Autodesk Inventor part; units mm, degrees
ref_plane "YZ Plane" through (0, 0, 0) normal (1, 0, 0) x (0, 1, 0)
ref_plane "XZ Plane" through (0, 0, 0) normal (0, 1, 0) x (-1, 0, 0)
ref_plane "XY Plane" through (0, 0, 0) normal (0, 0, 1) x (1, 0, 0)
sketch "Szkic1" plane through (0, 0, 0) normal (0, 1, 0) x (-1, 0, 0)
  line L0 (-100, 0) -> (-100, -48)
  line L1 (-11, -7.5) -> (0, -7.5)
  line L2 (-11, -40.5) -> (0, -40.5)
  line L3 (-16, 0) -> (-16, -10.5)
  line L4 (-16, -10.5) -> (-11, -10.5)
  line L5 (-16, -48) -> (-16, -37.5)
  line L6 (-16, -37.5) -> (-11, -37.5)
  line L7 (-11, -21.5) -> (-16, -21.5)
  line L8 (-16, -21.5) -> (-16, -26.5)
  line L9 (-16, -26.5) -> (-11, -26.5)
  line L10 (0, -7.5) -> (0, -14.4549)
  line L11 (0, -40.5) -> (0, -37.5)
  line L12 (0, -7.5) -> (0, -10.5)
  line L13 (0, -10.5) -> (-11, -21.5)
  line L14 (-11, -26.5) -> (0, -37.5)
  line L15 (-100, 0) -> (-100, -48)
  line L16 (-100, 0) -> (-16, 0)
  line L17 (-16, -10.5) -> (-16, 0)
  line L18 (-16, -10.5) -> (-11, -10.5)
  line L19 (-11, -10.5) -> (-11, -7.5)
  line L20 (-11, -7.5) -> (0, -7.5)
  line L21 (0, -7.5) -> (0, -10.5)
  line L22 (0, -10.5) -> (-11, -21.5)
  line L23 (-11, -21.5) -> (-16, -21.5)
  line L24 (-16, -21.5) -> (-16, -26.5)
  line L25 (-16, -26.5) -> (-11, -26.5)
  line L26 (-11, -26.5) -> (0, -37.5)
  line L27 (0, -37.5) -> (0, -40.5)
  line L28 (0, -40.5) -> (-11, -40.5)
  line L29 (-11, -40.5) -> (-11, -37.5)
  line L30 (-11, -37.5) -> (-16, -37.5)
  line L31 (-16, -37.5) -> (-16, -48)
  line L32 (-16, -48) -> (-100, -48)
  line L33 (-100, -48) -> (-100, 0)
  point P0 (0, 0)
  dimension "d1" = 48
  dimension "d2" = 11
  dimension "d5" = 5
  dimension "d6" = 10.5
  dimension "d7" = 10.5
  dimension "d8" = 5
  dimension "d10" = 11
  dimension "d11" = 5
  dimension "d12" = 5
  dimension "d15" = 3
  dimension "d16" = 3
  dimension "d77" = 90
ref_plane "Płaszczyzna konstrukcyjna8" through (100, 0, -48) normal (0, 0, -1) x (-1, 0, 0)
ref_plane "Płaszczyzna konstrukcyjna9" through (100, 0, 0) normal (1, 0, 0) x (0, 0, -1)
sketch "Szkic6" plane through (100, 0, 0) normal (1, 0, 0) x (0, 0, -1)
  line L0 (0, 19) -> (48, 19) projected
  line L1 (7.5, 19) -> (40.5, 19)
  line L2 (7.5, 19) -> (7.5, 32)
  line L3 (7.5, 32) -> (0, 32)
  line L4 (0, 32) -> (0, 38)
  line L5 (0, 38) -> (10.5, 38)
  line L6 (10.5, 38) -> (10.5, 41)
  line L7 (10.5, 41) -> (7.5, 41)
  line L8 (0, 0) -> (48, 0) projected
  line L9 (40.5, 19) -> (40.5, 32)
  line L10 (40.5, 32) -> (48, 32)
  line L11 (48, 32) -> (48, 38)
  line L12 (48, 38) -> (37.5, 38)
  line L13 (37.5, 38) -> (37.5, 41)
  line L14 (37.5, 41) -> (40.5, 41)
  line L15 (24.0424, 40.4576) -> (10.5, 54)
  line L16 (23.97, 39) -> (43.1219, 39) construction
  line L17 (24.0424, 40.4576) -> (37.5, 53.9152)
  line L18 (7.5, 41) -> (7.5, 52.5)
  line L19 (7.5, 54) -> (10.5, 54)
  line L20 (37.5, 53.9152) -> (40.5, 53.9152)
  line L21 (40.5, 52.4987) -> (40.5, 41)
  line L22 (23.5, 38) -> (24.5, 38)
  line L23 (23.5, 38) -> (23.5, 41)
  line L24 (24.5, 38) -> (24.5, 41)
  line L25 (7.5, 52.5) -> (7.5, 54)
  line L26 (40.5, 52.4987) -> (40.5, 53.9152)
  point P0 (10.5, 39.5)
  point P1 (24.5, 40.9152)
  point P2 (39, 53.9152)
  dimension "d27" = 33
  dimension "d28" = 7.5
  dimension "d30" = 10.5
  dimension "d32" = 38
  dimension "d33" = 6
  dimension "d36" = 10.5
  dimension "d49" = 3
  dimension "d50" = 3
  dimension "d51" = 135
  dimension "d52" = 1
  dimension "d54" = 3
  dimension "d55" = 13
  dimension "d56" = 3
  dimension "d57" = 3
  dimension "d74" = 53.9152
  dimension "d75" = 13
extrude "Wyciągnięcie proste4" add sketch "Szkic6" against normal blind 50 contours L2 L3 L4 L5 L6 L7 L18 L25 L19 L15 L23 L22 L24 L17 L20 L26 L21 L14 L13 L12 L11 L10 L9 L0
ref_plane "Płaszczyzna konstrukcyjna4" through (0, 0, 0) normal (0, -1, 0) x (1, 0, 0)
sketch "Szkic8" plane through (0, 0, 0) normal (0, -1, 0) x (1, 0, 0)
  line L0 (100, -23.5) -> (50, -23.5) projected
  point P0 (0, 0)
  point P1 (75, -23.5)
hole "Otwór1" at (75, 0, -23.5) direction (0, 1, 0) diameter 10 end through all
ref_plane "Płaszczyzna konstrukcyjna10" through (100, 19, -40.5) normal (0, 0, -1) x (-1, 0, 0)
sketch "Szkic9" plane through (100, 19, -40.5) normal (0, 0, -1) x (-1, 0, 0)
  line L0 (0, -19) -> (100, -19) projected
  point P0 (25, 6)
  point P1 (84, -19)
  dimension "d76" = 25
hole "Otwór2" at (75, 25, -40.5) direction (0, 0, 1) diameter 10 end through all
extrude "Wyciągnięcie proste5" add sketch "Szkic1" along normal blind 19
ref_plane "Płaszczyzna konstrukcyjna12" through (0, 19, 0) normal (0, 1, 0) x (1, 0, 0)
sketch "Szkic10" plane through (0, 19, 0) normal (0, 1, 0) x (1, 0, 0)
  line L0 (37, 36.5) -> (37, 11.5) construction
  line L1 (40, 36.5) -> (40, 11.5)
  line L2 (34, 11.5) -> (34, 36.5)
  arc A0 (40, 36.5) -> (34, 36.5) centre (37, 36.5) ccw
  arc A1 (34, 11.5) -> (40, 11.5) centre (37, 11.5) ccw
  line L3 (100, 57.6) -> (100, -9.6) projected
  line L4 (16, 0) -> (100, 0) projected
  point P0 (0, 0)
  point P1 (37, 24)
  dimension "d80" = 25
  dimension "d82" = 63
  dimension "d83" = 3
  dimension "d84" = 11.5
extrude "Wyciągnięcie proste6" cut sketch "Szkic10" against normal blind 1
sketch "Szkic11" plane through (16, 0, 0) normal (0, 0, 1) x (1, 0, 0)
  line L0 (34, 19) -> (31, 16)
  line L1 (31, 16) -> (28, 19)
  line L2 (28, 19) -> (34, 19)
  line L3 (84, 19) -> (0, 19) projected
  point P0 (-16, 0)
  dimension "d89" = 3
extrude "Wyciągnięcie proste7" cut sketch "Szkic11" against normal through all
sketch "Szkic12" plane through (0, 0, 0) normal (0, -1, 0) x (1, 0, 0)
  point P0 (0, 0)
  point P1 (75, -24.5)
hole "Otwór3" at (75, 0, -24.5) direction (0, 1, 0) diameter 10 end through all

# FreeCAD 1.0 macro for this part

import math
import FreeCAD as App
import Part
import Sketcher

V = App.Vector
Q = App.Units.Quantity

doc = App.newDocument("Part")
body = doc.addObject("PartDesign::Body", "Body")

# Sketch on YZ plane
sketch1 = doc.addObject("Sketcher::SketchObject", "Sketch")
body.addObject(sketch1)
sketch1.AttachmentSupport = (doc.YZ_Plane, [""])
sketch1.MapMode = "FlatFace"
sketch1.AttachmentOffset = App.Placement(V(0, 0, 100), App.Rotation())
sketch1.addGeometry([
    Part.LineSegment(V(32, -7.5, 0), V(19, -7.5, 0)),  # 0
    Part.LineSegment(V(19, -7.5, 0), V(19, -40.5, 0)),  # 1
    Part.LineSegment(V(19, -40.5, 0), V(32, -40.5, 0)),  # 2
    Part.LineSegment(V(32, -40.5, 0), V(32, -48, 0)),  # 3
    Part.LineSegment(V(32, -48, 0), V(38, -48, 0)),  # 4
    Part.LineSegment(V(38, -48, 0), V(38, -37.5, 0)),  # 5
    Part.LineSegment(V(38, -37.5, 0), V(41, -37.5, 0)),  # 6
    Part.LineSegment(V(41, -37.5, 0), V(41, -40.5, 0)),  # 7
    Part.LineSegment(V(41, -40.5, 0), V(53.9, -40.5, 0)),  # 8
    Part.LineSegment(V(53.9, -40.5, 0), V(53.9, -37.5, 0)),  # 9
    Part.LineSegment(V(53.9, -37.5, 0), V(40.9, -24.5, 0)),  # 10
    Part.LineSegment(V(40.9, -24.5, 0), V(38, -24.5, 0)),  # 11
    Part.LineSegment(V(38, -24.5, 0), V(38, -23.5, 0)),  # 12
    Part.LineSegment(V(38, -23.5, 0), V(41, -23.5, 0)),  # 13
    Part.LineSegment(V(41, -23.5, 0), V(54, -10.5, 0)),  # 14
    Part.LineSegment(V(54, -10.5, 0), V(54, -7.5, 0)),  # 15
    Part.LineSegment(V(54, -7.5, 0), V(41, -7.5, 0)),  # 16
    Part.LineSegment(V(41, -7.5, 0), V(41, -10.5, 0)),  # 17
    Part.LineSegment(V(41, -10.5, 0), V(38, -10.5, 0)),  # 18
    Part.LineSegment(V(38, -10.5, 0), V(38, 0, 0)),  # 19
    Part.LineSegment(V(38, 0, 0), V(32, 0, 0)),  # 20
    Part.LineSegment(V(32, 0, 0), V(32, -7.5, 0)),  # 21
], False)
sketch1.addConstraint([
    Sketcher.Constraint("Coincident", 0, 2, 1, 1),
    Sketcher.Constraint("Coincident", 1, 2, 2, 1),
    Sketcher.Constraint("Coincident", 2, 2, 3, 1),
    Sketcher.Constraint("Coincident", 3, 2, 4, 1),
    Sketcher.Constraint("Coincident", 4, 2, 5, 1),
    Sketcher.Constraint("Coincident", 5, 2, 6, 1),
    Sketcher.Constraint("Coincident", 6, 2, 7, 1),
    Sketcher.Constraint("Coincident", 7, 2, 8, 1),
    Sketcher.Constraint("Coincident", 8, 2, 9, 1),
    Sketcher.Constraint("Coincident", 9, 2, 10, 1),
    Sketcher.Constraint("Coincident", 10, 2, 11, 1),
    Sketcher.Constraint("Coincident", 11, 2, 12, 1),
    Sketcher.Constraint("Coincident", 12, 2, 13, 1),
    Sketcher.Constraint("Coincident", 13, 2, 14, 1),
    Sketcher.Constraint("Coincident", 14, 2, 15, 1),
    Sketcher.Constraint("Coincident", 15, 2, 16, 1),
    Sketcher.Constraint("Coincident", 16, 2, 17, 1),
    Sketcher.Constraint("Coincident", 17, 2, 18, 1),
    Sketcher.Constraint("Coincident", 18, 2, 19, 1),
    Sketcher.Constraint("Coincident", 19, 2, 20, 1),
    Sketcher.Constraint("Coincident", 20, 2, 21, 1),
    Sketcher.Constraint("Coincident", 21, 2, 0, 1),
    Sketcher.Constraint("Horizontal", 0),
    Sketcher.Constraint("Vertical", 1),
    Sketcher.Constraint("Horizontal", 2),
    Sketcher.Constraint("Vertical", 3),
    Sketcher.Constraint("Horizontal", 4),
    Sketcher.Constraint("Vertical", 5),
    Sketcher.Constraint("Horizontal", 6),
    Sketcher.Constraint("Vertical", 7),
    Sketcher.Constraint("Horizontal", 8),
    Sketcher.Constraint("Vertical", 9),
    Sketcher.Constraint("Horizontal", 11),
    Sketcher.Constraint("Vertical", 12),
    Sketcher.Constraint("Horizontal", 13),
    Sketcher.Constraint("Vertical", 15),
    Sketcher.Constraint("Horizontal", 16),
    Sketcher.Constraint("Vertical", 17),
    Sketcher.Constraint("Horizontal", 18),
    Sketcher.Constraint("Vertical", 19),
    Sketcher.Constraint("Horizontal", 20),
    Sketcher.Constraint("Vertical", 21),
    Sketcher.Constraint("PointOnObject", 19, 2, -1),
    Sketcher.Constraint("Perpendicular", 10, 14),
    Sketcher.Constraint("Horizontal", 2, 2, 7, 2),
    Sketcher.Constraint("Horizontal", 6, 2, 9, 2),
    Sketcher.Constraint("Horizontal", 0, 2, 15, 2),
    Sketcher.Constraint("Horizontal", 14, 2, 17, 2),
    Sketcher.Constraint("Vertical", 5, 2, 11, 2),
    Sketcher.Constraint("Vertical", 7, 2, 13, 2),
    Sketcher.Constraint("Vertical", 13, 2, 16, 2),
    Sketcher.Constraint("Vertical", 12, 2, 18, 2),
    Sketcher.Constraint("Vertical", 3, 2, 20, 2),
    Sketcher.Constraint("Equal", 2, 16),
    Sketcher.Constraint("Equal", 18, 7),
    Sketcher.Constraint("Equal", 9, 15),
    Sketcher.Constraint("Equal", 5, 19),
    Sketcher.Constraint("Equal", 10, 14),
    Sketcher.Constraint("DistanceX", 0, 2, 0, 1, Q("13 mm")),
    Sketcher.Constraint("DistanceX", 4, 1, 4, 2, Q("6 mm")),
    Sketcher.Constraint("DistanceX", 6, 1, 6, 2, Q("3 mm")),
    Sketcher.Constraint("DistanceY", 1, 2, 1, 1, Q("33 mm")),
    Sketcher.Constraint("DistanceY", 12, 1, 12, 2, Q("1 mm")),
    Sketcher.Constraint("DistanceY", 3, 2, 3, 1, Q("7.5 mm")),
    Sketcher.Constraint("DistanceX", -1, 1, 4, 2, Q("38 mm")),
    Sketcher.Constraint("DistanceX", -1, 1, 8, 2, Q("53.9152 mm")),
])
pad1 = doc.addObject("PartDesign::Pad", "Pad")
body.addObject(pad1)
pad1.Profile = sketch1
pad1.Length = 50
pad1.Reversed = True

# Sketch on XZ plane
sketch2 = doc.addObject("Sketcher::SketchObject", "Sketch001")
body.addObject(sketch2)
sketch2.AttachmentSupport = (doc.XZ_Plane, [""])
sketch2.MapMode = "FlatFace"
sketch2.addGeometry(Part.Circle(V(75, -24, 0), V(0, 0, 1), 5), False)
sketch2.addConstraint([
    Sketcher.Constraint("Diameter", 0, Q("10 mm")),
    Sketcher.Constraint("DistanceX", -1, 1, 0, 3, Q("75 mm")),
    Sketcher.Constraint("DistanceY", 0, 3, -1, 1, Q("23.5 mm")),
])
doc.recompute()
hole = doc.addObject("PartDesign::Hole", "Hole")
body.addObject(hole)
hole.Profile = sketch2
hole.ThreadType = "None"
hole.Diameter = 10
hole.DepthType = "ThroughAll"

# Sketch on XY plane
sketch3 = doc.addObject("Sketcher::SketchObject", "Sketch002")
body.addObject(sketch3)
sketch3.AttachmentSupport = (doc.XY_Plane, [""])
sketch3.MapMode = "FlatFace"
sketch3.AttachmentOffset = App.Placement(V(0, 0, -40.5), App.Rotation())
sketch3.addGeometry(Part.Circle(V(75, 25, 0), V(0, 0, 1), 5), False)
sketch3.addConstraint([
    Sketcher.Constraint("Diameter", 0, Q("10 mm")),
    Sketcher.Constraint("DistanceX", -1, 1, 0, 3, Q("75 mm")),
    Sketcher.Constraint("DistanceY", -1, 1, 0, 3, Q("25 mm")),
])
doc.recompute()
hole2 = doc.addObject("PartDesign::Hole", "Hole001")
body.addObject(hole2)
hole2.Profile = sketch3
hole2.ThreadType = "None"
hole2.Diameter = 10
hole2.DepthType = "ThroughAll"
hole2.Reversed = True

# Sketch on XZ plane
sketch4 = doc.addObject("Sketcher::SketchObject", "Sketch003")
body.addObject(sketch4)
sketch4.AttachmentSupport = (doc.XZ_Plane, [""])
sketch4.MapMode = "FlatFace"
sketch4.addGeometry([
    Part.LineSegment(V(16, 0, 0), V(100, 0, 0)),  # 0
    Part.LineSegment(V(100, 0, 0), V(100, -48, 0)),  # 1
    Part.LineSegment(V(100, -48, 0), V(16, -48, 0)),  # 2
    Part.LineSegment(V(16, -48, 0), V(16, -37.5, 0)),  # 3
    Part.LineSegment(V(16, -37.5, 0), V(11, -37.5, 0)),  # 4
    Part.LineSegment(V(11, -37.5, 0), V(11, -40.5, 0)),  # 5
    Part.LineSegment(V(11, -40.5, 0), V(0, -40.5, 0)),  # 6
    Part.LineSegment(V(0, -40.5, 0), V(0, -37.5, 0)),  # 7
    Part.LineSegment(V(0, -37.5, 0), V(11, -26.5, 0)),  # 8
    Part.LineSegment(V(11, -26.5, 0), V(16, -26.5, 0)),  # 9
    Part.LineSegment(V(16, -26.5, 0), V(16, -21.5, 0)),  # 10
    Part.LineSegment(V(16, -21.5, 0), V(11, -21.5, 0)),  # 11
    Part.LineSegment(V(11, -21.5, 0), V(0, -10.5, 0)),  # 12
    Part.LineSegment(V(0, -10.5, 0), V(0, -7.5, 0)),  # 13
    Part.LineSegment(V(0, -7.5, 0), V(11, -7.5, 0)),  # 14
    Part.LineSegment(V(11, -7.5, 0), V(11, -10.5, 0)),  # 15
    Part.LineSegment(V(11, -10.5, 0), V(16, -10.5, 0)),  # 16
    Part.LineSegment(V(16, -10.5, 0), V(16, 0, 0)),  # 17
], False)
sketch4.addConstraint([
    Sketcher.Constraint("Coincident", 0, 2, 1, 1),
    Sketcher.Constraint("Coincident", 1, 2, 2, 1),
    Sketcher.Constraint("Coincident", 2, 2, 3, 1),
    Sketcher.Constraint("Coincident", 3, 2, 4, 1),
    Sketcher.Constraint("Coincident", 4, 2, 5, 1),
    Sketcher.Constraint("Coincident", 5, 2, 6, 1),
    Sketcher.Constraint("Coincident", 6, 2, 7, 1),
    Sketcher.Constraint("Coincident", 7, 2, 8, 1),
    Sketcher.Constraint("Coincident", 8, 2, 9, 1),
    Sketcher.Constraint("Coincident", 9, 2, 10, 1),
    Sketcher.Constraint("Coincident", 10, 2, 11, 1),
    Sketcher.Constraint("Coincident", 11, 2, 12, 1),
    Sketcher.Constraint("Coincident", 12, 2, 13, 1),
    Sketcher.Constraint("Coincident", 13, 2, 14, 1),
    Sketcher.Constraint("Coincident", 14, 2, 15, 1),
    Sketcher.Constraint("Coincident", 15, 2, 16, 1),
    Sketcher.Constraint("Coincident", 16, 2, 17, 1),
    Sketcher.Constraint("Coincident", 17, 2, 0, 1),
    Sketcher.Constraint("Horizontal", 0),
    Sketcher.Constraint("Vertical", 1),
    Sketcher.Constraint("Horizontal", 2),
    Sketcher.Constraint("Vertical", 3),
    Sketcher.Constraint("Horizontal", 4),
    Sketcher.Constraint("Vertical", 5),
    Sketcher.Constraint("Horizontal", 6),
    Sketcher.Constraint("Vertical", 7),
    Sketcher.Constraint("Horizontal", 9),
    Sketcher.Constraint("Vertical", 10),
    Sketcher.Constraint("Horizontal", 11),
    Sketcher.Constraint("Vertical", 13),
    Sketcher.Constraint("Horizontal", 14),
    Sketcher.Constraint("Vertical", 15),
    Sketcher.Constraint("Horizontal", 16),
    Sketcher.Constraint("Vertical", 17),
    Sketcher.Constraint("PointOnObject", 0, 2, -1),
    Sketcher.Constraint("PointOnObject", 6, 2, -2),
    Sketcher.Constraint("PointOnObject", 12, 2, -2),
    Sketcher.Constraint("Perpendicular", 8, 12),
    Sketcher.Constraint("Horizontal", 4, 2, 7, 2),
    Sketcher.Constraint("Horizontal", 12, 2, 15, 2),
    Sketcher.Constraint("Vertical", 5, 2, 8, 2),
    Sketcher.Constraint("Vertical", 3, 2, 9, 2),
    Sketcher.Constraint("Vertical", 8, 2, 11, 2),
    Sketcher.Constraint("Vertical", 11, 2, 14, 2),
    Sketcher.Constraint("Vertical", 10, 2, 16, 2),
    Sketcher.Constraint("Equal", 16, 10),
    Sketcher.Constraint("Equal", 7, 13),
    Sketcher.Constraint("Equal", 3, 17),
    Sketcher.Constraint("Equal", 8, 12),
    Sketcher.Constraint("DistanceX", 4, 2, 4, 1, Q("5 mm")),
    Sketcher.Constraint("DistanceX", 6, 2, 6, 1, Q("11 mm")),
    Sketcher.Constraint("DistanceY", 1, 2, 1, 1, Q("48 mm")),
    Sketcher.Constraint("DistanceY", 5, 2, 5, 1, Q("3 mm")),
    Sketcher.Constraint("DistanceX", 0, 1, 0, 2, Q("84 mm")),
])
pad2 = doc.addObject("PartDesign::Pad", "Pad001")
body.addObject(pad2)
pad2.Profile = sketch4
pad2.Length = 19
pad2.Reversed = True

# Sketch on XZ plane
sketch5 = doc.addObject("Sketcher::SketchObject", "Sketch004")
body.addObject(sketch5)
sketch5.AttachmentSupport = (doc.XZ_Plane, [""])
sketch5.MapMode = "FlatFace"
sketch5.AttachmentOffset = App.Placement(V(0, 0, -19), App.Rotation())
sketch5.addGeometry([
    Part.LineSegment(V(40, -11.5, 0), V(40, -36.5, 0)),
    Part.ArcOfCircle(Part.Circle(V(37, -36.5, 0), V(0, 0, 1), 3), math.radians(180), math.radians(360)),
    Part.LineSegment(V(34, -36.5, 0), V(34, -11.5, 0)),
    Part.ArcOfCircle(Part.Circle(V(37, -11.5, 0), V(0, 0, 1), 3), math.radians(0), math.radians(180)),
], False)
sketch5.addConstraint([
    Sketcher.Constraint("Tangent", 0, 2, 1, 2),
    Sketcher.Constraint("Tangent", 1, 1, 2, 1),
    Sketcher.Constraint("Tangent", 2, 2, 3, 2),
    Sketcher.Constraint("Tangent", 3, 1, 0, 1),
    Sketcher.Constraint("Vertical", 0),
    Sketcher.Constraint("Vertical", 2),
    Sketcher.Constraint("Radius", 1, Q("3 mm")),
    Sketcher.Constraint("DistanceY", 0, 2, 0, 1, Q("25 mm")),
    Sketcher.Constraint("DistanceY", 3, 3, -1, 1, Q("11.5 mm")),
    Sketcher.Constraint("DistanceX", -1, 1, 1, 3, Q("37 mm")),
])
pocket1 = doc.addObject("PartDesign::Pocket", "Pocket")
body.addObject(pocket1)
pocket1.Profile = sketch5
pocket1.Length = 1
pocket1.Reversed = True

# Sketch on XY plane
sketch6 = doc.addObject("Sketcher::SketchObject", "Sketch005")
body.addObject(sketch6)
sketch6.AttachmentSupport = (doc.XY_Plane, [""])
sketch6.MapMode = "FlatFace"
sketch6.addGeometry([
    Part.LineSegment(V(47, 16, 0), V(50, 19, 0)),
    Part.LineSegment(V(50, 19, 0), V(44, 19, 0)),
    Part.LineSegment(V(44, 19, 0), V(47, 16, 0)),
], False)
sketch6.addConstraint([
    Sketcher.Constraint("Coincident", 0, 2, 1, 1),
    Sketcher.Constraint("Coincident", 1, 2, 2, 1),
    Sketcher.Constraint("Coincident", 2, 2, 0, 1),
    Sketcher.Constraint("Horizontal", 1),
    Sketcher.Constraint("Perpendicular", 0, 2),
    Sketcher.Constraint("Equal", 0, 2),
    Sketcher.Constraint("DistanceX", 2, 2, 0, 2, Q("3 mm")),
    Sketcher.Constraint("DistanceX", -1, 1, 0, 2, Q("50 mm")),
    Sketcher.Constraint("DistanceY", -1, 1, 0, 2, Q("19 mm")),
])
pocket2 = doc.addObject("PartDesign::Pocket", "Pocket001")
body.addObject(pocket2)
pocket2.Profile = sketch6
pocket2.Type = "ThroughAll"

# Sketch on XZ plane
sketch7 = doc.addObject("Sketcher::SketchObject", "Sketch006")
body.addObject(sketch7)
sketch7.AttachmentSupport = (doc.XZ_Plane, [""])
sketch7.MapMode = "FlatFace"
sketch7.addGeometry(Part.Circle(V(75, -24, 0), V(0, 0, 1), 5), False)
sketch7.addConstraint([
    Sketcher.Constraint("Diameter", 0, Q("10 mm")),
    Sketcher.Constraint("DistanceX", -1, 1, 0, 3, Q("75 mm")),
    Sketcher.Constraint("DistanceY", 0, 3, -1, 1, Q("24.5 mm")),
])
doc.recompute()
hole3 = doc.addObject("PartDesign::Hole", "Hole002")
body.addObject(hole3)
hole3.Profile = sketch7
hole3.ThreadType = "None"
hole3.Diameter = 10
hole3.DepthType = "ThroughAll"

doc.recompute()
